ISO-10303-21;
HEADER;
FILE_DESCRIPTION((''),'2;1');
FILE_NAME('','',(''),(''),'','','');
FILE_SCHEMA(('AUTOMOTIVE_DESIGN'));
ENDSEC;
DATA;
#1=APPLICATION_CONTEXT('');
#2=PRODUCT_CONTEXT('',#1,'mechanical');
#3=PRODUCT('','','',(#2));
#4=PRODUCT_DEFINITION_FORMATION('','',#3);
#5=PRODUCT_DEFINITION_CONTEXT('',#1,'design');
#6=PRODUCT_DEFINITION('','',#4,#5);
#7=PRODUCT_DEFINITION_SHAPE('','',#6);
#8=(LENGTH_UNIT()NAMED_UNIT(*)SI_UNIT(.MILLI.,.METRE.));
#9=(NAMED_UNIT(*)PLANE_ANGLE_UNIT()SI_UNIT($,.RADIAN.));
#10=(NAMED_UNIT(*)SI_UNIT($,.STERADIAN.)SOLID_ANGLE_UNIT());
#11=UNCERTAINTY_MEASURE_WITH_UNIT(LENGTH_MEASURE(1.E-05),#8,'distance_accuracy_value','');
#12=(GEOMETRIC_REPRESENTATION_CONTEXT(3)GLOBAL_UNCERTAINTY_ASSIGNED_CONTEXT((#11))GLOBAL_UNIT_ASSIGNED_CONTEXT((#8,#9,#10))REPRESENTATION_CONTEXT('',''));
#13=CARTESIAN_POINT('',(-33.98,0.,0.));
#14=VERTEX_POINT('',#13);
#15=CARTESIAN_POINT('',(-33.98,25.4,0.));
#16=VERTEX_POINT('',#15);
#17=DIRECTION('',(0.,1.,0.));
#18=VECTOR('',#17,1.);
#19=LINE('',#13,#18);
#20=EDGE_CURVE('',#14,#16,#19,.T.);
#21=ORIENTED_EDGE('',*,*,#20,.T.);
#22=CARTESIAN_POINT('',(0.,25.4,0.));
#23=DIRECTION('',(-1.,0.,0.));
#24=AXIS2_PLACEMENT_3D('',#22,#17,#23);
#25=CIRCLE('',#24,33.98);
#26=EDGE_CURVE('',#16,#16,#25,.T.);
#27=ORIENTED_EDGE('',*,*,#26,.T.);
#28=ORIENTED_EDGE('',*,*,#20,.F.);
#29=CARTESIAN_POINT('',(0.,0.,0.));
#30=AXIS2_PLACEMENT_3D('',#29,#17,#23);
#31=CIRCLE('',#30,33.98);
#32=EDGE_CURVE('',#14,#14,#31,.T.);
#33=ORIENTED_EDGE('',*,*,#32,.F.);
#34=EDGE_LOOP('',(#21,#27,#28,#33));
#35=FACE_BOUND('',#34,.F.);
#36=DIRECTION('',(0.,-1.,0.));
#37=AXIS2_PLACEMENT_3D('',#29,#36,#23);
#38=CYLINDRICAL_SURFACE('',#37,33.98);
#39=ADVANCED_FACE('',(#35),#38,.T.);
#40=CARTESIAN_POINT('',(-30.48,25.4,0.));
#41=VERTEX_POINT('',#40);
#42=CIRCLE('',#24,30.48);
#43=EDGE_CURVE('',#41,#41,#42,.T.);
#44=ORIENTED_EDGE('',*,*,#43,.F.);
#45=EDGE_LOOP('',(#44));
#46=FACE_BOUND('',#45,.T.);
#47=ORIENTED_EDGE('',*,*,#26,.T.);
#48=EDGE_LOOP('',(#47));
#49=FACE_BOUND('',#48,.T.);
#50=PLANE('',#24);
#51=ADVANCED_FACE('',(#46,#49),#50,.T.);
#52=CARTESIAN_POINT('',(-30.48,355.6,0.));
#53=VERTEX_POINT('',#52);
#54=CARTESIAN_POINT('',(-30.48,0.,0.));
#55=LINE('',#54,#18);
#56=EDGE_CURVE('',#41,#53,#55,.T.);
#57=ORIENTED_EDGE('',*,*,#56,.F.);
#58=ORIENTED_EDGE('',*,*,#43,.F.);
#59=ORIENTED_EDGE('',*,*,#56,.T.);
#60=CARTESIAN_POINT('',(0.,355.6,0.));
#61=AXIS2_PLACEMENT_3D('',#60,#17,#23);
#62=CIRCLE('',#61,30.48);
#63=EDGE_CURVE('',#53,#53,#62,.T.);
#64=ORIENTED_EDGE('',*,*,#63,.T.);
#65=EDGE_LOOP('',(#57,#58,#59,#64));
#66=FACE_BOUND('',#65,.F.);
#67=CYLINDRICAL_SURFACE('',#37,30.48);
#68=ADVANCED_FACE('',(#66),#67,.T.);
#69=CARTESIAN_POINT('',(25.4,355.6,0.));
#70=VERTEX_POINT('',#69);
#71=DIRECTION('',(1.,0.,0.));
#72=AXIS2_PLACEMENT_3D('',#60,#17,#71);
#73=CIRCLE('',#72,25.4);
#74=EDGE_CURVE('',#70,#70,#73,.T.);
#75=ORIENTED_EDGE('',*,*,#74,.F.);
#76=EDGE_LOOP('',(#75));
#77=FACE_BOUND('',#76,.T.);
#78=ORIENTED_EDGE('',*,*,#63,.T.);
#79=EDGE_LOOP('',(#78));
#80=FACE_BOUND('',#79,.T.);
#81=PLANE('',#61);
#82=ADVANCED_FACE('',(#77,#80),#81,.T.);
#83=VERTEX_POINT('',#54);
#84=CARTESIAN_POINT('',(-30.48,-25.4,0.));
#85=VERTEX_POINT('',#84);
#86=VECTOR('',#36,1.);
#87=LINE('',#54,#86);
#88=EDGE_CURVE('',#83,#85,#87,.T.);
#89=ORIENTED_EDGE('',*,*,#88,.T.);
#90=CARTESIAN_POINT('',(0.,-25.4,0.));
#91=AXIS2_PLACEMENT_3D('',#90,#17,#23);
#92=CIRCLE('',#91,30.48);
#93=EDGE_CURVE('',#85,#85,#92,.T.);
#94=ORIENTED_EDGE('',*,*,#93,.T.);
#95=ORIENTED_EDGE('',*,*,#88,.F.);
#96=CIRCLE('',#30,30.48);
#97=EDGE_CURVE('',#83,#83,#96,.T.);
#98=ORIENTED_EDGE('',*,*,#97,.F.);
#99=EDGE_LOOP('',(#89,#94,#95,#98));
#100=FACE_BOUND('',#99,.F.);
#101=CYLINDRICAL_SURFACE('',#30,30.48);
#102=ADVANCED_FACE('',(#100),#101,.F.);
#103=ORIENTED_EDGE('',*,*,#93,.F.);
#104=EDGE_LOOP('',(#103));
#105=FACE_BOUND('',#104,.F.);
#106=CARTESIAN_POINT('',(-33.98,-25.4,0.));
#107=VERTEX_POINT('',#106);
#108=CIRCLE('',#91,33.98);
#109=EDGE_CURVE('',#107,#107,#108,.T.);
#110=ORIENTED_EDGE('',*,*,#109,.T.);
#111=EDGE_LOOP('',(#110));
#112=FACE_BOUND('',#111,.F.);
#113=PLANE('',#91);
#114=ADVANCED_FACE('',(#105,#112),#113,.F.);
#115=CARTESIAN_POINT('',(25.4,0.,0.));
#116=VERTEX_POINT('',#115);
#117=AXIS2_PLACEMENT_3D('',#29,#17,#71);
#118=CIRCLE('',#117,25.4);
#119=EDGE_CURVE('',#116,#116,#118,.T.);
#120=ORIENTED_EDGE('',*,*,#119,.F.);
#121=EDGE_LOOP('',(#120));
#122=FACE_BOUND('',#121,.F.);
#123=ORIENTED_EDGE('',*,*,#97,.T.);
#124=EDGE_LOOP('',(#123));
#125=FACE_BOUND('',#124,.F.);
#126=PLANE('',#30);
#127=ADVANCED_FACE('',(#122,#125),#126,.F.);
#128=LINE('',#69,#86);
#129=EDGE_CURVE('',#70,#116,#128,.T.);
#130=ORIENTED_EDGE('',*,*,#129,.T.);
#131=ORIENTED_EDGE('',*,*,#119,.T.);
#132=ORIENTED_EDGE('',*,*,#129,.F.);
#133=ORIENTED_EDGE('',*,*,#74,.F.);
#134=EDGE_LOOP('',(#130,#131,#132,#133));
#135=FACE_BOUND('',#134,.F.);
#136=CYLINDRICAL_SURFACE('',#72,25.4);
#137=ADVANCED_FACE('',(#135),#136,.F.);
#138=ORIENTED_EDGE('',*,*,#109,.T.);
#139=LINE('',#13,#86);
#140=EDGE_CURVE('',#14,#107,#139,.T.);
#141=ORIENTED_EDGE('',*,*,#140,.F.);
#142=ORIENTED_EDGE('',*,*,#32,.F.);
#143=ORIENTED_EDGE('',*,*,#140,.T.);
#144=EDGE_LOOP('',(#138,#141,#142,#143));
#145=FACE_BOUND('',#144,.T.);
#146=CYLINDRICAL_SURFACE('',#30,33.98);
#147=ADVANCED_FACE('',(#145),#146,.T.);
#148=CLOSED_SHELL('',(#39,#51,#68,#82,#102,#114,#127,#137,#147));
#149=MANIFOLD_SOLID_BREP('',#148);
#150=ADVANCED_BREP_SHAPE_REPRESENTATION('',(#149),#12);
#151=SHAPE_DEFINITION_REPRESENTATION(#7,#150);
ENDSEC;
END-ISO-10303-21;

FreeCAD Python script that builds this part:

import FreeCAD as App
import Part
import Sketcher

V = App.Vector
Q = App.Units.Quantity

doc = App.newDocument("Part")
body = doc.addObject("PartDesign::Body", "Body")

sketch1 = body.newObject("Sketcher::SketchObject", "Sketch")
sketch1.AttachmentSupport = (doc.getObject("XZ_Plane"), [""])
sketch1.MapMode = "FlatFace"
sketch1.addGeometry(Part.Circle(V(0, 0, 0), V(0, 0, 1), 30), False)
sketch1.addConstraint([
    Sketcher.Constraint("Coincident", 0, 3, -1, 1),
    Sketcher.Constraint("Diameter", 0, Q("2.4 in")),
])
pad1 = body.newObject("PartDesign::Pad", "Pad")
pad1.Profile = sketch1
pad1.Length = Q("14 in")
pad1.Reversed = True

sketch2 = body.newObject("Sketcher::SketchObject", "Sketch001")
sketch2.AttachmentSupport = (doc.getObject("XZ_Plane"), [""])
sketch2.MapMode = "FlatFace"
sketch2.addGeometry([
    Part.Circle(V(0, 0, 0), V(0, 0, 1), 34),
    Part.Circle(V(0, 0, 0), V(0, 0, 1), 30),
], False)
sketch2.addConstraint([
    Sketcher.Constraint("Coincident", 0, 3, -1, 1),
    Sketcher.Constraint("Coincident", 1, 3, -1, 1),
    Sketcher.Constraint("Diameter", 1, Q("2.4 in")),
    Sketcher.Constraint("Diameter", 0, Q("2.6756 in")),
])
pad2 = body.newObject("PartDesign::Pad", "Pad001")
pad2.Profile = sketch2
pad2.Length = Q("2 in")
pad2.Midplane = True

sketch3 = body.newObject("Sketcher::SketchObject", "Sketch002")
sketch3.AttachmentSupport = (doc.getObject("XZ_Plane"), [""])
sketch3.MapMode = "FlatFace"
sketch3.AttachmentOffset = App.Placement(V(0, 0, -14 * 25.4), App.Rotation())
sketch3.addGeometry(Part.Circle(V(0, 0, 0), V(0, 0, 1), 25), False)
sketch3.addConstraint([
    Sketcher.Constraint("Coincident", 0, 3, -1, 1),
    Sketcher.Constraint("Diameter", 0, Q("2 in")),
])
pocket1 = body.newObject("PartDesign::Pocket", "Pocket")
pocket1.Profile = sketch3
pocket1.Type = "ThroughAll"
pocket1.Reversed = True

doc.recompute()
